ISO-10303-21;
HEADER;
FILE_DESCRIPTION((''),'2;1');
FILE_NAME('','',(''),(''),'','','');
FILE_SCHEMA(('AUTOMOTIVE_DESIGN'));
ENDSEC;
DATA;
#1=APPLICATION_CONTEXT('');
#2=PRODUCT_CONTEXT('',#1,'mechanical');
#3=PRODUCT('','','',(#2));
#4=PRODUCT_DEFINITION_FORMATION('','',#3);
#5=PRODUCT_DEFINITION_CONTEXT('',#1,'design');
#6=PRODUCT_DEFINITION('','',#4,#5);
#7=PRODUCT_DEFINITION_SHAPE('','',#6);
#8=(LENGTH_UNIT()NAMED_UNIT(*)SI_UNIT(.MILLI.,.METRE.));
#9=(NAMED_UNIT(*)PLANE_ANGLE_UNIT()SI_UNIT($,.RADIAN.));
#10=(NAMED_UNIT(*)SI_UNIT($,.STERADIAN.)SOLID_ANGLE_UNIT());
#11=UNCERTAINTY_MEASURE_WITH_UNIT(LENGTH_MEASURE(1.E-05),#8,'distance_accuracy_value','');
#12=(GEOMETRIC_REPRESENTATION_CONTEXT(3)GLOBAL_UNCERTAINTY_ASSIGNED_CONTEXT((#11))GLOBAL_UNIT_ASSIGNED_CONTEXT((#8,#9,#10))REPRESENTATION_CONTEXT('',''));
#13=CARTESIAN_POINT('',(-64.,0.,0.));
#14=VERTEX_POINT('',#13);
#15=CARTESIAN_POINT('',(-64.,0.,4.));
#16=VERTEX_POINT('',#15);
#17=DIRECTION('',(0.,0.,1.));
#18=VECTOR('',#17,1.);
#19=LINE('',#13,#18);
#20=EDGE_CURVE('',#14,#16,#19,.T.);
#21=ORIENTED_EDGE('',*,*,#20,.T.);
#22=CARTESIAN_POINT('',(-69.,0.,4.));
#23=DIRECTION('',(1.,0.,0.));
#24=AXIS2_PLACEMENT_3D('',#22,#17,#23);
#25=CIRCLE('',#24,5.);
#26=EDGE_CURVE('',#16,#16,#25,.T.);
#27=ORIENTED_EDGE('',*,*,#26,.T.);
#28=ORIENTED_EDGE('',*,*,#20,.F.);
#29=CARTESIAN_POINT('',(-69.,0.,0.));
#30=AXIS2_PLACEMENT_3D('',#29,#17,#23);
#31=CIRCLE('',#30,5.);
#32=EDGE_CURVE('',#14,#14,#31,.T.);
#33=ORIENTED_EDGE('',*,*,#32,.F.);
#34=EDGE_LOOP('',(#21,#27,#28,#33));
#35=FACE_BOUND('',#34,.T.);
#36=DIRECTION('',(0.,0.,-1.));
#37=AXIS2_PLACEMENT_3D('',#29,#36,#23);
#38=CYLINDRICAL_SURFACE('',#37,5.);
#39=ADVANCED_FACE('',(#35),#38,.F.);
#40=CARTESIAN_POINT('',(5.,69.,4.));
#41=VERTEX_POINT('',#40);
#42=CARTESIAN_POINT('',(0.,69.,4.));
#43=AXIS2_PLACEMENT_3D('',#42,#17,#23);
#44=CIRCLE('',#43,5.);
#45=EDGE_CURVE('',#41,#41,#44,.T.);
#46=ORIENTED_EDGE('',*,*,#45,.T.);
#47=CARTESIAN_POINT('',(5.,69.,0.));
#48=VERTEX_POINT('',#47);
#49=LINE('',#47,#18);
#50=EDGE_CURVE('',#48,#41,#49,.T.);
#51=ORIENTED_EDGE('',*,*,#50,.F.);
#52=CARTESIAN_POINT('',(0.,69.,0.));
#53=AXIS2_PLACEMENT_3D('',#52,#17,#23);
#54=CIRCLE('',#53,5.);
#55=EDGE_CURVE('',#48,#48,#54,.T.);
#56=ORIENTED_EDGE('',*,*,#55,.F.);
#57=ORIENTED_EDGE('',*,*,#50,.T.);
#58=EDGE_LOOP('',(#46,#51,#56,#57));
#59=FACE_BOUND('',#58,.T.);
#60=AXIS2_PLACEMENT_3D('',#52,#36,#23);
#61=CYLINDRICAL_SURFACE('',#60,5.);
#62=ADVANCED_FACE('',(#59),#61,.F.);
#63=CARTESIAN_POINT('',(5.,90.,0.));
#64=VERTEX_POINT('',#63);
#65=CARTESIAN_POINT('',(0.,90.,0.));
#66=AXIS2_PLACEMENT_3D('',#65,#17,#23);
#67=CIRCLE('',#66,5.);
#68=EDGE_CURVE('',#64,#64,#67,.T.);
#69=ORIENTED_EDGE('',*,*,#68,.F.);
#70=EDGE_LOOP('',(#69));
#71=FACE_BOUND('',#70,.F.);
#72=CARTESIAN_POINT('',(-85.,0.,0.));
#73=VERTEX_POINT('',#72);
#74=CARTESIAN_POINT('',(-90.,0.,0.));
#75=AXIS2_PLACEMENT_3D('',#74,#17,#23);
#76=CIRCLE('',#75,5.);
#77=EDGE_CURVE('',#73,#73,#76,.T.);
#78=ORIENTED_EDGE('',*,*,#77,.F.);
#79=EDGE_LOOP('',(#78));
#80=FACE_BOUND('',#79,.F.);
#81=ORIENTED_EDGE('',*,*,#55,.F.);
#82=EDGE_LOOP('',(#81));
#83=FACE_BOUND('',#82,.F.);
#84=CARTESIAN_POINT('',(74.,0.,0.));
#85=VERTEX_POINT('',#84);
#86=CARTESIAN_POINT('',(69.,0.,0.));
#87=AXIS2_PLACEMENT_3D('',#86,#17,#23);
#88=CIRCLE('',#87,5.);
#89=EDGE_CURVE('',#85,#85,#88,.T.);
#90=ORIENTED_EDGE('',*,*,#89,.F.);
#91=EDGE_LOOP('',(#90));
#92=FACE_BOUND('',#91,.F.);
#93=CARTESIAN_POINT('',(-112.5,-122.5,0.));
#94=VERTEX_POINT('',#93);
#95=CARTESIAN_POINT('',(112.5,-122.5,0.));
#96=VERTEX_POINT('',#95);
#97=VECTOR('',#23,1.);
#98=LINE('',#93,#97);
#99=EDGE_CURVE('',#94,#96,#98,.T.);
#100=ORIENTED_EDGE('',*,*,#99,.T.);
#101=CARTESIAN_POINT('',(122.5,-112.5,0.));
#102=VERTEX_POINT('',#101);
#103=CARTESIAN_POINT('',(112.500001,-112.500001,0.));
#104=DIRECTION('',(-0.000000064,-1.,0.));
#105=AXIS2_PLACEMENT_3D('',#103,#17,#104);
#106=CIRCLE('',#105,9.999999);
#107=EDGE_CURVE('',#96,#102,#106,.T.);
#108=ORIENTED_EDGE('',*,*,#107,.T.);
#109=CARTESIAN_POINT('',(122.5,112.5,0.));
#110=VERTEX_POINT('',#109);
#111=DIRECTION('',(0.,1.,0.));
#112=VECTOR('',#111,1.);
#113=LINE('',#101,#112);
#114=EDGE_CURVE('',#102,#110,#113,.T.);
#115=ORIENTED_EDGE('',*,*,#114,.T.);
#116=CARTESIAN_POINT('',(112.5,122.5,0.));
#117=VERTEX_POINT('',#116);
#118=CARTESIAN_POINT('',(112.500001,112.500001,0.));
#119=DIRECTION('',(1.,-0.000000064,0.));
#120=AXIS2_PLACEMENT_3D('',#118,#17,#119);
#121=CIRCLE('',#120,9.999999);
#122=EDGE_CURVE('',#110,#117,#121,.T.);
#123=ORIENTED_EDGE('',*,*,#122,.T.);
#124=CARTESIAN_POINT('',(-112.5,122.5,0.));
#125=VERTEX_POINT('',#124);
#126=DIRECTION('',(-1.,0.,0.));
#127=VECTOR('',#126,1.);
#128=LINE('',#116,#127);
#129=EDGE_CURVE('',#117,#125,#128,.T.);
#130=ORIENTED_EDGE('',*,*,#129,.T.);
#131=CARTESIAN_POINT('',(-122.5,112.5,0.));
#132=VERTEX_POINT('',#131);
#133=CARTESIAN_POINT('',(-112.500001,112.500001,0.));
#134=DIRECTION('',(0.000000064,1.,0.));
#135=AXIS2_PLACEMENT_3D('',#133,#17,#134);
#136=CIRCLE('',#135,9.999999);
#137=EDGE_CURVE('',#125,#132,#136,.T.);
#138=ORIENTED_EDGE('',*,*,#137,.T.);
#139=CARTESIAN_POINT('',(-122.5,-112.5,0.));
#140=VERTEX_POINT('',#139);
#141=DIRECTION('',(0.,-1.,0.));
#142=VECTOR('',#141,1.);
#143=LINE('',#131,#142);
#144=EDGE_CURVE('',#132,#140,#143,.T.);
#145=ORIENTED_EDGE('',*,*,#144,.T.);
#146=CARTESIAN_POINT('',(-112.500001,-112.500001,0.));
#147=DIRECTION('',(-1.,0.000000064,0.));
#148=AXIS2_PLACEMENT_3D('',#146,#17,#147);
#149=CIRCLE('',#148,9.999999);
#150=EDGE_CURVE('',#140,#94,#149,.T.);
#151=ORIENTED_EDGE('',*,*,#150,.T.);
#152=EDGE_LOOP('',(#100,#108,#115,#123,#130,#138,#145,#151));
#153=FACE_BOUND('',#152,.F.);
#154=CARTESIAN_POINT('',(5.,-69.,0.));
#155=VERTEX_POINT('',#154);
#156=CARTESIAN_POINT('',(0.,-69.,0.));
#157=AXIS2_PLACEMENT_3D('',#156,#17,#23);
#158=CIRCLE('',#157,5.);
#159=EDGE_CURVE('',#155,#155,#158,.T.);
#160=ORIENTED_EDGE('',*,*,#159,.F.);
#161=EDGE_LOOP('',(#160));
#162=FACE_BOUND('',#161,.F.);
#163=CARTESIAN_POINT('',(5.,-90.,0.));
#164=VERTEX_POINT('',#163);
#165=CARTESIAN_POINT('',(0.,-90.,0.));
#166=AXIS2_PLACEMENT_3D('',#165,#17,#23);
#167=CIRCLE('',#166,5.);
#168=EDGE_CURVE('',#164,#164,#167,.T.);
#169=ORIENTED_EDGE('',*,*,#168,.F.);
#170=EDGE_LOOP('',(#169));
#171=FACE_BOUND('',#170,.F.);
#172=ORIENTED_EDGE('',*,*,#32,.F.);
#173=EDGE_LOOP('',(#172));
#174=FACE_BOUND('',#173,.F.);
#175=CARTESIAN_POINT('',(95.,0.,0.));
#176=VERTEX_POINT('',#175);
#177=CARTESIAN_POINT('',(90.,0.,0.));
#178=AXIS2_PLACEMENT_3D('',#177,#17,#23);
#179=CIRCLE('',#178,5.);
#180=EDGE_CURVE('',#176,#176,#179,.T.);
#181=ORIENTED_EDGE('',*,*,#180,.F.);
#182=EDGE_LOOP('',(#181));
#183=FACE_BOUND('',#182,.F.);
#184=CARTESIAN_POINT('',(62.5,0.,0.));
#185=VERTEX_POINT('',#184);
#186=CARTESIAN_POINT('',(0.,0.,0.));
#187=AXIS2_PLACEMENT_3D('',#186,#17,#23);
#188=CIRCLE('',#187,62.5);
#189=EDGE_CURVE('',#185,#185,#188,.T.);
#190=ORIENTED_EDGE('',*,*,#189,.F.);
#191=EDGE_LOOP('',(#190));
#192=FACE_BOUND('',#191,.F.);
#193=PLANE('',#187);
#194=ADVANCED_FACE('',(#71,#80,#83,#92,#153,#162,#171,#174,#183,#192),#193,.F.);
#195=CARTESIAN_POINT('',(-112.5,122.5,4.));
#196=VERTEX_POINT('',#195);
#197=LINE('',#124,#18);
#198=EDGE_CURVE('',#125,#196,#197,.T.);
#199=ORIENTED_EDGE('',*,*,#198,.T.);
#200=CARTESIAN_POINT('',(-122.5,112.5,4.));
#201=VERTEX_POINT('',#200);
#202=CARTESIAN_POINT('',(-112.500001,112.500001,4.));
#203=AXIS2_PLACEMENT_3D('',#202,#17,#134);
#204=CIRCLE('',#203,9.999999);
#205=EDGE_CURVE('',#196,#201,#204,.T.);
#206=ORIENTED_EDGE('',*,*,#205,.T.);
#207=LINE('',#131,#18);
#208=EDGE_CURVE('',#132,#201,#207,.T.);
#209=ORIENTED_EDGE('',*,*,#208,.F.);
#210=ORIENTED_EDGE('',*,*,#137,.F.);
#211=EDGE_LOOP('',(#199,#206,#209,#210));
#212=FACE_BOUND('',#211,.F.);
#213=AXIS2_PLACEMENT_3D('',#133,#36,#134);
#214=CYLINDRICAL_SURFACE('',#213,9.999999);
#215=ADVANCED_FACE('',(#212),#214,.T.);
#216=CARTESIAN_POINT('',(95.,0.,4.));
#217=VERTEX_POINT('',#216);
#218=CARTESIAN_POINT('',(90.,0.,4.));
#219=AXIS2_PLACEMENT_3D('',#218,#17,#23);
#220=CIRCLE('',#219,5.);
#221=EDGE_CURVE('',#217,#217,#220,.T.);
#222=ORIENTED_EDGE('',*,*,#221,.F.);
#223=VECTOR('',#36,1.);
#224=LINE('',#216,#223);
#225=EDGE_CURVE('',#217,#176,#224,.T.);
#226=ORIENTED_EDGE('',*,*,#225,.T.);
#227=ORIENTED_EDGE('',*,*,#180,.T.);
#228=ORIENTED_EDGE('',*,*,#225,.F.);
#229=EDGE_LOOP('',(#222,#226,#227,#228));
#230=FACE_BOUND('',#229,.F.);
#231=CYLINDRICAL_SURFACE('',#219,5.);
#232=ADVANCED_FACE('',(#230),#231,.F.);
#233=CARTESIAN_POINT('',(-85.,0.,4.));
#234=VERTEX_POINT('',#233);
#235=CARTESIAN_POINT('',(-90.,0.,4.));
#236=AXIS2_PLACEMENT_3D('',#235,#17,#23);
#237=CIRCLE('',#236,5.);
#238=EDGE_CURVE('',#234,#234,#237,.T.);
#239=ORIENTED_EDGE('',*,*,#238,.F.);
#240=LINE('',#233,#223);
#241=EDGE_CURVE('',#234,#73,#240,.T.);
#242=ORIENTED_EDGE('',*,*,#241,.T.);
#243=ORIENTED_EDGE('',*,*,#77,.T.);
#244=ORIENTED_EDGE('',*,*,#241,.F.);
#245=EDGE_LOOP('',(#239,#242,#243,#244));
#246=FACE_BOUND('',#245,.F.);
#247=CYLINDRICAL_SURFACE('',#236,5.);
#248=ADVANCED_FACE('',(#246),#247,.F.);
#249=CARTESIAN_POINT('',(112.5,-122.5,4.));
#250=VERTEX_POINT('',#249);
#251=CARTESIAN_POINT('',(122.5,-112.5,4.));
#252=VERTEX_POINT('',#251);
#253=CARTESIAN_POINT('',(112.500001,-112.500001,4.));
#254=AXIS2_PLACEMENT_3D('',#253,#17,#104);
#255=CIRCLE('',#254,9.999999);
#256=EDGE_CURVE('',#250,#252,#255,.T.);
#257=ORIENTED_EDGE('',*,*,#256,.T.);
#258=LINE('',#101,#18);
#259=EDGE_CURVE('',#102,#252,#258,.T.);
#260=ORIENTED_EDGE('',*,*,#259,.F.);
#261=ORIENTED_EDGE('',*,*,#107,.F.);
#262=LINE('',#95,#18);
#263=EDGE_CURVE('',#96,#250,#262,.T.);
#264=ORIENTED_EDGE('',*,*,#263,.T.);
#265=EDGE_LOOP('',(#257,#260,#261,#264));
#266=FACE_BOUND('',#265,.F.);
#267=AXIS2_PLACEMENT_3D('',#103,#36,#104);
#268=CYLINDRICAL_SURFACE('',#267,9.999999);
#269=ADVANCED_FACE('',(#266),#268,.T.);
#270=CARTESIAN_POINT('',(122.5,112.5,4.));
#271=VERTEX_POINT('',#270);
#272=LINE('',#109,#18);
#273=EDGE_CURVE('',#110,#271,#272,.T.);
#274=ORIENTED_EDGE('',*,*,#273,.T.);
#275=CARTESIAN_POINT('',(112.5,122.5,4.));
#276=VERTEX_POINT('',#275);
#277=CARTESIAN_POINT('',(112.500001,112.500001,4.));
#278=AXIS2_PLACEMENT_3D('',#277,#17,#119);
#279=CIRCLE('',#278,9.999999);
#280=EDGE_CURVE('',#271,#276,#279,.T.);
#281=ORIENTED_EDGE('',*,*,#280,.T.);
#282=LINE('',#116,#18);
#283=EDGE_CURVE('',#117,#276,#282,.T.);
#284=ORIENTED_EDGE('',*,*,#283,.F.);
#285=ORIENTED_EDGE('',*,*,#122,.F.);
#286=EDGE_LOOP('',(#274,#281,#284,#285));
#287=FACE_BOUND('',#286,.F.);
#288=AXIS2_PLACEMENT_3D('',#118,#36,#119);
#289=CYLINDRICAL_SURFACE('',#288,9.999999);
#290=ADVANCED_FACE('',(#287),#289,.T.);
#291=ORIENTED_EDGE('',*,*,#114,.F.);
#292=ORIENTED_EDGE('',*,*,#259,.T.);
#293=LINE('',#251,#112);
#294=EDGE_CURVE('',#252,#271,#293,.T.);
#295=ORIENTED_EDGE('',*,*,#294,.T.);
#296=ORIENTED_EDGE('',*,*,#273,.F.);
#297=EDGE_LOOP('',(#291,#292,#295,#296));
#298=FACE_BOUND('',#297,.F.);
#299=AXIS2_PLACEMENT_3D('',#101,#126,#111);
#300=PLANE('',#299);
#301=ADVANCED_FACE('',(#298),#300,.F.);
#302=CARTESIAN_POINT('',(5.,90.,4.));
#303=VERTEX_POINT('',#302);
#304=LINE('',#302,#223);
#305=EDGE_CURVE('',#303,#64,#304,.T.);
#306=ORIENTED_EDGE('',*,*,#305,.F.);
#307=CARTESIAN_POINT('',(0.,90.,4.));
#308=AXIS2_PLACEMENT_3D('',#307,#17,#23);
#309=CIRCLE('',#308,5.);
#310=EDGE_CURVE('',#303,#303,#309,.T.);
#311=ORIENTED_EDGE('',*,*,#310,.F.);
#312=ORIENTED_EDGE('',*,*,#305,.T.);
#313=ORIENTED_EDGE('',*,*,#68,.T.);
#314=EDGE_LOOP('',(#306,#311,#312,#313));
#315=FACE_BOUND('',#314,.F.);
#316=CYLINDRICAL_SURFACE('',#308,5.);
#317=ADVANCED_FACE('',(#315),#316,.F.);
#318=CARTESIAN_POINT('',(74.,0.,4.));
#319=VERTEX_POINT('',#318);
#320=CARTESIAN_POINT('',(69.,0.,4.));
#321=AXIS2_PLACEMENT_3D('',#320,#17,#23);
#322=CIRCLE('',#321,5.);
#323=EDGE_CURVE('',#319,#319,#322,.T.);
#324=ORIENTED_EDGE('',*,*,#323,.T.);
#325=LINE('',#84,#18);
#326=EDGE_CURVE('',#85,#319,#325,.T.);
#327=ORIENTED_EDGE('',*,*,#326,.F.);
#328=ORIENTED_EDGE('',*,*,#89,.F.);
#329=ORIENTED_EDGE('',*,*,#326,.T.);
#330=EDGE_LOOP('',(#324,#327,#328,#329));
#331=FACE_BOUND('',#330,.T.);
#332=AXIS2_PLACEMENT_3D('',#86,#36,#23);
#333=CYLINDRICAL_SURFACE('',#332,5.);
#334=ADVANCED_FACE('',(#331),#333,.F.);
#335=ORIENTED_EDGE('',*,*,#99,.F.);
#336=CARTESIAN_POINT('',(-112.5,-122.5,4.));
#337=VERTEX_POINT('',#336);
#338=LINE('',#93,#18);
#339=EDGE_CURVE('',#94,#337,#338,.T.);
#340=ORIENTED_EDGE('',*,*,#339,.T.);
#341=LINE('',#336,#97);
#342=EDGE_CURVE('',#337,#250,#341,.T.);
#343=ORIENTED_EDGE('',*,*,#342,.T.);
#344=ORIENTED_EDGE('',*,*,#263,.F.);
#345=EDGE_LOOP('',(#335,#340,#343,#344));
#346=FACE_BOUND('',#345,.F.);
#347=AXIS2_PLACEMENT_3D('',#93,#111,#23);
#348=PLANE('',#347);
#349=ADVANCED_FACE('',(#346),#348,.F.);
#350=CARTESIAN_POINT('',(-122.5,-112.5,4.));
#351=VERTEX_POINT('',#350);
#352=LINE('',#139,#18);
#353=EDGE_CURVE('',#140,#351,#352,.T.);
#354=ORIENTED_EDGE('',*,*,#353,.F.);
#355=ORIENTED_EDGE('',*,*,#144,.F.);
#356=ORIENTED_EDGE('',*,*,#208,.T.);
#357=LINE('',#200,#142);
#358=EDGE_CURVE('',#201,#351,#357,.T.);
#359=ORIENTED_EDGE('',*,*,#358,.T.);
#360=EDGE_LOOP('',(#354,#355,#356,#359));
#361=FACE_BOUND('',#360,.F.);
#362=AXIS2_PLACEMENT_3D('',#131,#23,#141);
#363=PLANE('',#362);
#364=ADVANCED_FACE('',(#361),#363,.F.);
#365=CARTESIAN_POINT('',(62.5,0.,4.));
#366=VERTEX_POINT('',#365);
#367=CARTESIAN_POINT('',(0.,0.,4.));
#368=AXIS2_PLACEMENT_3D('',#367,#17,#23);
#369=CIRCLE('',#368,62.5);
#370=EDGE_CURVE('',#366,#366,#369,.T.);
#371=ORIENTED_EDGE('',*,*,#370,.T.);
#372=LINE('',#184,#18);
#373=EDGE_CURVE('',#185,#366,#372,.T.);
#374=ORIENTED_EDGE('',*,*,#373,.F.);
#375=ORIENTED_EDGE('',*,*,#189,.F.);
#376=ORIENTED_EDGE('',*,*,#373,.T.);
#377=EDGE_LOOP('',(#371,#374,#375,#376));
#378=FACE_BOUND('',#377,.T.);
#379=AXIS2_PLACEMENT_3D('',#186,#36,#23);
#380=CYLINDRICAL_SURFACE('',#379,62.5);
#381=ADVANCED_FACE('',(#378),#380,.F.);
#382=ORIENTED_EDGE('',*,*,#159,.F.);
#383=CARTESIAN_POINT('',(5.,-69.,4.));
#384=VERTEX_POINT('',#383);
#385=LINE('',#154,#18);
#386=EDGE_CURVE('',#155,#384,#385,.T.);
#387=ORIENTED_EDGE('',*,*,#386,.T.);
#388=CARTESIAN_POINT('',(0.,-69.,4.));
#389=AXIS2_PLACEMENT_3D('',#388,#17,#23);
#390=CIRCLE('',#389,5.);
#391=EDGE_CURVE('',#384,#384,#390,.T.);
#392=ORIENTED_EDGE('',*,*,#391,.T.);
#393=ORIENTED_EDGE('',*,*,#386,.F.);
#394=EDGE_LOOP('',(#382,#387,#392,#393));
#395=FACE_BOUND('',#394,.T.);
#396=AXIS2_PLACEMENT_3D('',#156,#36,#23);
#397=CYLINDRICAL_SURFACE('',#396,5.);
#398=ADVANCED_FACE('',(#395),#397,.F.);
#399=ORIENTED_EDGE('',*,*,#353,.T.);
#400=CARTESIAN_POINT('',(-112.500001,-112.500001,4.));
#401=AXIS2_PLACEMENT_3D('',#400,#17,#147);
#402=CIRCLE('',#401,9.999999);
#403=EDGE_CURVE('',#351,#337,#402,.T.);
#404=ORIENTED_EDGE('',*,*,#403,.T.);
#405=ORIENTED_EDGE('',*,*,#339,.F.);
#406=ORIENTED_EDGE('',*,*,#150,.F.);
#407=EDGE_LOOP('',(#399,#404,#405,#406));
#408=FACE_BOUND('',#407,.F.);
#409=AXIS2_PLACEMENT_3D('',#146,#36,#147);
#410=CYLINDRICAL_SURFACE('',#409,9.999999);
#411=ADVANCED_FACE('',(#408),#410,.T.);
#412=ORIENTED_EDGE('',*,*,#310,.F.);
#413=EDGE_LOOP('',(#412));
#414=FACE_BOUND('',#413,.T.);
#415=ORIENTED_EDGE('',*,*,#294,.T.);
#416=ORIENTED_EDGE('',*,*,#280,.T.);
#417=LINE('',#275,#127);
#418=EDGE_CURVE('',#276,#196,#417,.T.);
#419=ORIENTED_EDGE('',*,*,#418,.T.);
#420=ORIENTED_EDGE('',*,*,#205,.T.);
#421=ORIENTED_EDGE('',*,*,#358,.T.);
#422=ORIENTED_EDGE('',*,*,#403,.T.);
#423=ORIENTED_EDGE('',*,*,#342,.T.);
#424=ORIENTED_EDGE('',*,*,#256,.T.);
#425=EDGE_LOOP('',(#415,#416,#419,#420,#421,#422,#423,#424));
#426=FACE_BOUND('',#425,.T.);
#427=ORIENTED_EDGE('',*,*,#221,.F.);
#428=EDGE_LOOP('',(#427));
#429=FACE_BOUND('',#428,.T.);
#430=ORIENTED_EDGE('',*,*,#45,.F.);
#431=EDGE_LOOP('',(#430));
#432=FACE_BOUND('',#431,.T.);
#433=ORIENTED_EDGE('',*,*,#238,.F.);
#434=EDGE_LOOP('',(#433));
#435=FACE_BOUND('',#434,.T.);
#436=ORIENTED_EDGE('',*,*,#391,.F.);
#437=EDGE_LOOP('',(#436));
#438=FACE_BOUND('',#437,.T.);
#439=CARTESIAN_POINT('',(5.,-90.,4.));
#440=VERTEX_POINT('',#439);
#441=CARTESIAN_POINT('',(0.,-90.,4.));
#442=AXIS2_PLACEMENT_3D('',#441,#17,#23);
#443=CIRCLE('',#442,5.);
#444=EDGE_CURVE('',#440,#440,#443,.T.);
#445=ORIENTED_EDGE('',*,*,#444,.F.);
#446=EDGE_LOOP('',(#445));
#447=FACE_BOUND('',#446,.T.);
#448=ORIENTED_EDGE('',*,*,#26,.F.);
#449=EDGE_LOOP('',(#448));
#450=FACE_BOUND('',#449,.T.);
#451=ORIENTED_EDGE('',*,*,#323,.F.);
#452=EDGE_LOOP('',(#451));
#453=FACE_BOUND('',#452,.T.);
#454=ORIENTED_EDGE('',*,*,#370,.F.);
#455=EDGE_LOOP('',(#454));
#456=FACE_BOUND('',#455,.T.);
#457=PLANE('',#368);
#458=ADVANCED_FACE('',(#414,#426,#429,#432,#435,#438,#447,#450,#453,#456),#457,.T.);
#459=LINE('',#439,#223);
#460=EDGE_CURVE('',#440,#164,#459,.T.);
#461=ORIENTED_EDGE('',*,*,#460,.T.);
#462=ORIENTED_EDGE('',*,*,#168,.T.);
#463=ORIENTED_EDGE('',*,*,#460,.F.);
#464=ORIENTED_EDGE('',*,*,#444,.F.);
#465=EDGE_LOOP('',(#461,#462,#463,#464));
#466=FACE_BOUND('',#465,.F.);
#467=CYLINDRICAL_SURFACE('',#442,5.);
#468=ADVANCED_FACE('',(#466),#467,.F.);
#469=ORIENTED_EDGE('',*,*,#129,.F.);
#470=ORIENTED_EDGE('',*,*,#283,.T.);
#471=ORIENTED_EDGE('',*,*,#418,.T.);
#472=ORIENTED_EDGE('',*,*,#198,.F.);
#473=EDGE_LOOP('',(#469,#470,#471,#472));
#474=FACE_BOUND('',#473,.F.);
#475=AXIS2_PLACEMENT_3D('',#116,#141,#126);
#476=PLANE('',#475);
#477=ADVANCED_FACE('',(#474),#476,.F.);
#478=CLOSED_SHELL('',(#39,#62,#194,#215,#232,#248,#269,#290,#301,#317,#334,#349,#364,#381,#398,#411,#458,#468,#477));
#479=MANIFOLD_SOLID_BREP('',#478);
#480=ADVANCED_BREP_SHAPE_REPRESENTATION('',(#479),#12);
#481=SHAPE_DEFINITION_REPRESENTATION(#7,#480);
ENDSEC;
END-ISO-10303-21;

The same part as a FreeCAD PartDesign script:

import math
import FreeCAD as App
import Part
import Sketcher

V = App.Vector

doc = App.newDocument("Part")
body = doc.addObject("PartDesign::Body", "Body")

# Sketch on XY plane
sketch1 = body.newObject("Sketcher::SketchObject", "Sketch")
sketch1.AttachmentSupport = (doc.getObject("XY_Plane"), [""])
sketch1.MapMode = "FlatFace"
sketch1.addGeometry([
    Part.LineSegment(V(112, 122, 0), V(-112, 122, 0)),  # 0
    Part.ArcOfCircle(Part.Circle(V(-113, 113, 0), V(0, 0, 1), 10), math.radians(90), math.radians(180)),  # 1
    Part.LineSegment(V(-122, 112, 0), V(-122, -112, 0)),  # 2
    Part.ArcOfCircle(Part.Circle(V(-113, -113, 0), V(0, 0, 1), 10), math.radians(180), math.radians(270)),  # 3
    Part.LineSegment(V(-112, -122, 0), V(112, -122, 0)),  # 4
    Part.ArcOfCircle(Part.Circle(V(113, -113, 0), V(0, 0, 1), 10), math.radians(-90), math.radians(0)),  # 5
    Part.LineSegment(V(122, -112, 0), V(122, 112, 0)),  # 6
    Part.ArcOfCircle(Part.Circle(V(113, 113, 0), V(0, 0, 1), 10), math.radians(0), math.radians(90)),  # 7
    Part.Circle(V(0, -69, 0), V(0, 0, 1), 5),  # 8
    Part.Circle(V(-69, 0, 0), V(0, 0, 1), 5),  # 9
    Part.Circle(V(0, 0, 0), V(0, 0, 1), 62),  # 10
    Part.Circle(V(69, 0, 0), V(0, 0, 1), 5),  # 11
    Part.Circle(V(0, 69, 0), V(0, 0, 1), 5),  # 12
], False)
sketch1.addConstraint([
    Sketcher.Constraint("Tangent", 0, 2, 1, 1),
    Sketcher.Constraint("Tangent", 1, 2, 2, 1),
    Sketcher.Constraint("Tangent", 2, 2, 3, 1),
    Sketcher.Constraint("Tangent", 3, 2, 4, 1),
    Sketcher.Constraint("Tangent", 4, 2, 5, 1),
    Sketcher.Constraint("Tangent", 5, 2, 6, 1),
    Sketcher.Constraint("Tangent", 6, 2, 7, 1),
    Sketcher.Constraint("Tangent", 7, 2, 0, 1),
    Sketcher.Constraint("Horizontal", 0),
    Sketcher.Constraint("Vertical", 2),
    Sketcher.Constraint("Horizontal", 4),
    Sketcher.Constraint("Vertical", 6),
    Sketcher.Constraint("Coincident", 10, 3, -1, 1),
    Sketcher.Constraint("Equal", 1, 3),
    Sketcher.Constraint("Equal", 3, 5),
    Sketcher.Constraint("Equal", 5, 7),
    Sketcher.Constraint("Equal", 8, 9),
    Sketcher.Constraint("Equal", 9, 11),
    Sketcher.Constraint("Equal", 11, 12),
    Sketcher.Constraint("Symmetric", 1, 3, 5, 3, -1, 1),
    Sketcher.Constraint("Symmetric", 9, 3, 11, 3, -1, 1),
    Sketcher.Constraint("Symmetric", 8, 3, 12, 3, -1, 1),
    Sketcher.Constraint("PointOnObject", 8, 3, -2),
    Sketcher.Constraint("PointOnObject", 9, 3, -1),
    Sketcher.Constraint("Equal", 4, 2),
    Sketcher.Constraint("Diameter", 8, 10.0),
    Sketcher.Constraint("Diameter", 10, 125.0),
    Sketcher.Constraint("Radius", 1, 9.999999),
    Sketcher.Constraint("DistanceX", 0, 2, 0, 1, 225.0),
    Sketcher.Constraint("DistanceY", 8, 3, -1, 1, 69.0),
    Sketcher.Constraint("DistanceX", 9, 3, -1, 1, 69.0),
])
pad1 = body.newObject("PartDesign::Pad", "Pad")
pad1.Profile = sketch1
pad1.Length = 4

# Sketch on XY plane
sketch2 = body.newObject("Sketcher::SketchObject", "Sketch001")
sketch2.AttachmentSupport = (doc.getObject("XY_Plane"), [""])
sketch2.MapMode = "FlatFace"
sketch2.AttachmentOffset = App.Placement(V(0, 0, 4), App.Rotation())
sketch2.addGeometry([
    Part.Circle(V(0, 90, 0), V(0, 0, 1), 5),
    Part.Circle(V(-90, 0, 0), V(0, 0, 1), 5),
    Part.Circle(V(0, -90, 0), V(0, 0, 1), 5),
    Part.Circle(V(90, 0, 0), V(0, 0, 1), 5),
], False)
sketch2.addConstraint([
    Sketcher.Constraint("Equal", 0, 1),
    Sketcher.Constraint("Equal", 1, 2),
    Sketcher.Constraint("Equal", 2, 3),
    Sketcher.Constraint("Symmetric", 0, 3, 2, 3, -1, 1),
    Sketcher.Constraint("Symmetric", 1, 3, 3, 3, -1, 1),
    Sketcher.Constraint("PointOnObject", 0, 3, -2),
    Sketcher.Constraint("PointOnObject", 1, 3, -1),
    Sketcher.Constraint("Diameter", 0, 10.0),
    Sketcher.Constraint("DistanceY", -1, 1, 0, 3, 90.0),
    Sketcher.Constraint("DistanceX", 1, 3, -1, 1, 90.0),
])
pocket1 = body.newObject("PartDesign::Pocket", "Pocket")
pocket1.Profile = sketch2
pocket1.Length = 25

doc.recompute()
